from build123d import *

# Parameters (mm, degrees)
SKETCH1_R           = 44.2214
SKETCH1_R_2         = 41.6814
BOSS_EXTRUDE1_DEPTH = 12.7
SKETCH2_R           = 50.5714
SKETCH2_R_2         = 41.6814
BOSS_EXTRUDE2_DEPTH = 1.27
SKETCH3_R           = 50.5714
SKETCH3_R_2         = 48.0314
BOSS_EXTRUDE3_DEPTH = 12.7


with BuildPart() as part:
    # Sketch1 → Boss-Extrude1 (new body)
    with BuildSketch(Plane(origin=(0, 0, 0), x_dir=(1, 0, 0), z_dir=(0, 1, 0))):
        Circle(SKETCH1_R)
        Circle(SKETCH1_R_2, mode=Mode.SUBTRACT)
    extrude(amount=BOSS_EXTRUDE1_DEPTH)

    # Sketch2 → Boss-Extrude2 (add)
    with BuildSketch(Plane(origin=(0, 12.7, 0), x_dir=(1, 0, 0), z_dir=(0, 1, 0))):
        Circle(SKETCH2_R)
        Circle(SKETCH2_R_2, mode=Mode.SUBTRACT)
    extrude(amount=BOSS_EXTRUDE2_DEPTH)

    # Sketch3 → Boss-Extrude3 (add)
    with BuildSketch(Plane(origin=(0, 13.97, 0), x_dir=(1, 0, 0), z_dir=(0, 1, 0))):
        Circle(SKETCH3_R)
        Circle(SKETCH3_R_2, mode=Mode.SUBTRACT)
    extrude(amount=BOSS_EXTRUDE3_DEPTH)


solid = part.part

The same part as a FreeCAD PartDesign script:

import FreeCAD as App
import Part
import Sketcher
from FreeCAD import Vector
Q = App.Units.Quantity

doc = App.newDocument("Part")
body = doc.addObject("PartDesign::Body", "Body")

sketch1 = body.newObject("Sketcher::SketchObject", "Sketch")
sketch1.AttachmentSupport = (doc.getObject("XZ_Plane"), [""])
sketch1.MapMode = "FlatFace"
sketch1.addGeometry([
    Part.Circle(Vector(0, 0, 0), Vector(0, 0, 1), 44),
    Part.Circle(Vector(0, 0, 0), Vector(0, 0, 1), 42),
], False)
sketch1.addConstraint([
    Sketcher.Constraint("Coincident", 0, 3, -1, 1),
    Sketcher.Constraint("Coincident", 1, 3, -1, 1),
    Sketcher.Constraint("Diameter", 0, Q("3.482 in")),
    Sketcher.Constraint("Diameter", 1, Q("3.282 in")),
])
pad1 = body.newObject("PartDesign::Pad", "Pad")
pad1.Profile = sketch1
pad1.Length = Q("0.5 in")
pad1.Reversed = True

sketch2 = body.newObject("Sketcher::SketchObject", "Sketch001")
sketch2.AttachmentSupport = (doc.getObject("XZ_Plane"), [""])
sketch2.MapMode = "FlatFace"
sketch2.AttachmentOffset = App.Placement(Vector(0, 0, -0.5 * 25.4), App.Rotation())
sketch2.addGeometry([
    Part.Circle(Vector(0, 0, 0), Vector(0, 0, 1), 51),
    Part.Circle(Vector(0, 0, 0), Vector(0, 0, 1), 42),
], False)
sketch2.addConstraint([
    Sketcher.Constraint("Coincident", 0, 3, -1, 1),
    Sketcher.Constraint("Coincident", 1, 3, -1, 1),
    Sketcher.Constraint("Diameter", 0, Q("3.982 in")),
    Sketcher.Constraint("Diameter", 1, Q("3.282 in")),
])
pad2 = body.newObject("PartDesign::Pad", "Pad001")
pad2.Profile = sketch2
pad2.Length = Q("0.05 in")
pad2.Reversed = True

sketch3 = body.newObject("Sketcher::SketchObject", "Sketch002")
sketch3.AttachmentSupport = (doc.getObject("XZ_Plane"), [""])
sketch3.MapMode = "FlatFace"
sketch3.AttachmentOffset = App.Placement(Vector(0, 0, -0.55 * 25.4), App.Rotation())
sketch3.addGeometry([
    Part.Circle(Vector(0, 0, 0), Vector(0, 0, 1), 51),
    Part.Circle(Vector(0, 0, 0), Vector(0, 0, 1), 48),
], False)
sketch3.addConstraint([
    Sketcher.Constraint("Coincident", 0, 3, -1, 1),
    Sketcher.Constraint("Coincident", 1, 3, -1, 1),
    Sketcher.Constraint("Diameter", 0, Q("3.982 in")),
    Sketcher.Constraint("Diameter", 1, Q("3.782 in")),
])
pad3 = body.newObject("PartDesign::Pad", "Pad002")
pad3.Profile = sketch3
pad3.Length = Q("0.5 in")
pad3.Reversed = True

doc.recompute()
